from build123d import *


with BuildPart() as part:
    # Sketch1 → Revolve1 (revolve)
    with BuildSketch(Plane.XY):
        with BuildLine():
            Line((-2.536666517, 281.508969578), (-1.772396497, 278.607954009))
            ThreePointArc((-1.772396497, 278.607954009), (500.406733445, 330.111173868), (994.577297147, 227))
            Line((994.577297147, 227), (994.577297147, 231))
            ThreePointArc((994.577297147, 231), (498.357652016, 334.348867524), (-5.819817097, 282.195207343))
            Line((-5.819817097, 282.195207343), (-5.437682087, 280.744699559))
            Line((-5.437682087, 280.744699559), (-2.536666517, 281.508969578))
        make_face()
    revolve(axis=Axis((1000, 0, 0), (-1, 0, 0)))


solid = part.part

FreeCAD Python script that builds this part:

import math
import FreeCAD as App
import Part
import Sketcher
Q = App.Units.Quantity

doc = App.newDocument("Part")
params = doc.addObject("Spreadsheet::Sheet", "Params")
for row, (alias, value) in enumerate([
    ("sketch1_radius", "1646 mm"),
    ("sketch1_radius2", "1650 mm"),
    ("sketch1_height", "4 mm"),
    ("sketch1_length", "3 mm"),
    ("sketch1_length2", "1.5 mm"),
    ("revolution_angle", "360 deg"),
], start=1):
    params.set(f"A{row}", alias)
    params.set(f"B{row}", "=" + value)
    params.setAlias(f"B{row}", alias)

body = doc.addObject("PartDesign::Body", "Body")

sketch1 = body.newObject("Sketcher::SketchObject", "Sketch")
sketch1.AttachmentSupport = (doc.getObject("XY_Plane"), [""])
sketch1.MapMode = "FlatFace"
sketch1.addGeometry([
    Part.LineSegment(App.Vector(-2.5, 281.5, 0), App.Vector(-1.8, 278.6, 0)),
    Part.ArcOfCircle(Part.Circle(App.Vector(415.3, -1313.7, 0), App.Vector(0, 0, 1), 1646), math.radians(69), math.radians(105)),
    Part.LineSegment(App.Vector(994.6, 227, 0), App.Vector(994.6, 231, 0)),
    Part.ArcOfCircle(Part.Circle(App.Vector(414, -1313.5, 0), App.Vector(0, 0, 1), 1650), math.radians(69), math.radians(105)),
    Part.LineSegment(App.Vector(-5.8, 282.2, 0), App.Vector(-5.4, 280.7, 0)),
    Part.LineSegment(App.Vector(-5.4, 280.7, 0), App.Vector(-2.5, 281.5, 0)),
], False)
sketch1.addConstraint([
    Sketcher.Constraint("Coincident", 0, 2, 1, 2),
    Sketcher.Constraint("Coincident", 1, 1, 2, 1),
    Sketcher.Constraint("Coincident", 2, 2, 3, 1),
    Sketcher.Constraint("Coincident", 3, 2, 4, 1),
    Sketcher.Constraint("Coincident", 4, 2, 5, 1),
    Sketcher.Constraint("Coincident", 5, 2, 0, 1),
    Sketcher.Constraint("Vertical", 2),
    Sketcher.Constraint("Parallel", 0, 4),
    Sketcher.Constraint("Perpendicular", 4, 5),
    Sketcher.Constraint("Equal", 0, 5),
    Sketcher.Constraint("Radius", 1, Q("1646 mm")),
    Sketcher.Constraint("Radius", 3, Q("1650 mm")),
    Sketcher.Constraint("DistanceY", 2, 1, 2, 2, Q("4 mm")),
    Sketcher.Constraint("Distance", 0, Q("3 mm")),
    Sketcher.Constraint("DistanceY", -1, 1, 2, 2, Q("231 mm")),
    Sketcher.Constraint("Distance", 4, Q("1.5 mm")),
    Sketcher.Constraint("DistanceY", 3, 3, -1, 1, Q("1313.4948 mm")),
    Sketcher.Constraint("DistanceY", -1, 1, 4, 2, Q("280.7447 mm")),
    Sketcher.Constraint("DistanceX", -1, 1, 3, 3, Q("414.029442 mm")),
    Sketcher.Constraint("DistanceY", -1, 1, 5, 2, Q("281.50897 mm")),
])
sketch1.setExpression("Constraints[10]", "Params.sketch1_radius")
sketch1.setExpression("Constraints[11]", "Params.sketch1_radius2")
sketch1.setExpression("Constraints[12]", "Params.sketch1_height")
sketch1.setExpression("Constraints[13]", "Params.sketch1_length")
sketch1.setExpression("Constraints[15]", "Params.sketch1_length2")
revolution = body.newObject("PartDesign::Revolution", "Revolution")
revolution.Profile = sketch1
revolution.ReferenceAxis = (sketch1, ["H_Axis"])
revolution.setExpression("Angle", "Params.revolution_angle")

doc.recompute()
